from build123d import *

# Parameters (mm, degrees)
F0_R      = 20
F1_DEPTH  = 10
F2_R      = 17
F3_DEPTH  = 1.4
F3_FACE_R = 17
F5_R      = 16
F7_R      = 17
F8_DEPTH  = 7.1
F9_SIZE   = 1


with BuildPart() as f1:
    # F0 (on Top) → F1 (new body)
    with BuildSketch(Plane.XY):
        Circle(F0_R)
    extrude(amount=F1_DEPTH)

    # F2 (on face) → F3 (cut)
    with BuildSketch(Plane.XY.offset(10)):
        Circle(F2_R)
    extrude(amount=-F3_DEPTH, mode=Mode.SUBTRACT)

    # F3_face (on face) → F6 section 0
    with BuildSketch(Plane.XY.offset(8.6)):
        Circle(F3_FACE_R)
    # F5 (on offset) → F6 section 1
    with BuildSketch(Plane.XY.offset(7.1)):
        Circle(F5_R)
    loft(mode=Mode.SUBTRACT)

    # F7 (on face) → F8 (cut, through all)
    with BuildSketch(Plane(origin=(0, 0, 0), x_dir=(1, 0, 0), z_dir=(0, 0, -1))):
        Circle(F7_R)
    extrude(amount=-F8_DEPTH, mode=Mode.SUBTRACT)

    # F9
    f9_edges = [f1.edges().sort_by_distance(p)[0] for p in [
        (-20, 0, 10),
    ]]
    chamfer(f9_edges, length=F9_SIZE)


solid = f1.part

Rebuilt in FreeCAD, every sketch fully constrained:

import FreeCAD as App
import Part
import Sketcher
from FreeCAD import Vector
Q = App.Units.Quantity


def edges_at(feature, points):
    """Names of the edges that pass closest to the given points."""
    edges = feature.Shape.Edges
    near = lambda p: min(range(len(edges)), key=lambda i: edges[i].distToShape(Part.Vertex(*p))[0])
    return sorted({f"Edge{near(p) + 1}" for p in points})

doc = App.newDocument("Part")
body = doc.addObject("PartDesign::Body", "Body")

# Sketch on XY plane
sketch1 = doc.addObject("Sketcher::SketchObject", "Sketch")
body.addObject(sketch1)
sketch1.AttachmentSupport = (doc.XY_Plane, [""])
sketch1.MapMode = "FlatFace"
sketch1.addGeometry(Part.Circle(Vector(0, 0, 0), Vector(0, 0, 1), 20), False)
sketch1.addConstraint(Sketcher.Constraint("Coincident", 0, 3, -1, 1))
sketch1.addConstraint(Sketcher.Constraint("Diameter", 0, Q("40 mm")))
pad1 = doc.addObject("PartDesign::Pad", "Pad")
body.addObject(pad1)
pad1.Profile = sketch1
pad1.Length = 10

# Sketch on XY plane
sketch2 = doc.addObject("Sketcher::SketchObject", "Sketch001")
body.addObject(sketch2)
sketch2.AttachmentSupport = (doc.XY_Plane, [""])
sketch2.MapMode = "FlatFace"
sketch2.AttachmentOffset = App.Placement(Vector(0, 0, 10), App.Rotation())
sketch2.addGeometry(Part.Circle(Vector(0, 0, 0), Vector(0, 0, 1), 17), False)
sketch2.addConstraint(Sketcher.Constraint("Coincident", 0, 3, -1, 1))
sketch2.addConstraint(Sketcher.Constraint("Diameter", 0, Q("34 mm")))
pocket1 = doc.addObject("PartDesign::Pocket", "Pocket")
body.addObject(pocket1)
pocket1.Profile = sketch2
pocket1.Length = 1.4

# Sketch on XY plane
sketch3 = doc.addObject("Sketcher::SketchObject", "Sketch002")
body.addObject(sketch3)
sketch3.AttachmentSupport = (doc.XY_Plane, [""])
sketch3.MapMode = "FlatFace"
sketch3.AttachmentOffset = App.Placement(Vector(0, 0, 8.6), App.Rotation())
sketch3.addGeometry(Part.Circle(Vector(0, 0, 0), Vector(0, 0, 1), 17), False)
sketch3.addConstraint(Sketcher.Constraint("Coincident", 0, 3, -1, 1))
sketch3.addConstraint(Sketcher.Constraint("Diameter", 0, Q("34 mm")))

# Sketch on XY plane
sketch4 = doc.addObject("Sketcher::SketchObject", "Sketch003")
body.addObject(sketch4)
sketch4.AttachmentSupport = (doc.XY_Plane, [""])
sketch4.MapMode = "FlatFace"
sketch4.AttachmentOffset = App.Placement(Vector(0, 0, 7.1), App.Rotation())
sketch4.addGeometry(Part.Circle(Vector(0, 0, 0), Vector(0, 0, 1), 16), False)
sketch4.addConstraint(Sketcher.Constraint("Coincident", 0, 3, -1, 1))
sketch4.addConstraint(Sketcher.Constraint("Diameter", 0, Q("32 mm")))

subtractiveloft = doc.addObject("PartDesign::SubtractiveLoft", "SubtractiveLoft")
body.addObject(subtractiveloft)
subtractiveloft.Profile = sketch3
subtractiveloft.Sections = [sketch4]

# Sketch on XY plane
sketch5 = doc.addObject("Sketcher::SketchObject", "Sketch004")
body.addObject(sketch5)
sketch5.AttachmentSupport = (doc.XY_Plane, [""])
sketch5.MapMode = "FlatFace"
sketch5.addGeometry(Part.Circle(Vector(0, 0, 0), Vector(0, 0, 1), 17), False)
sketch5.addConstraint(Sketcher.Constraint("Coincident", 0, 3, -1, 1))
sketch5.addConstraint(Sketcher.Constraint("Diameter", 0, Q("34 mm")))
pocket2 = doc.addObject("PartDesign::Pocket", "Pocket001")
body.addObject(pocket2)
pocket2.Profile = sketch5
pocket2.Length = 7.1
pocket2.Reversed = True
doc.recompute()

chamfer = doc.addObject("PartDesign::Chamfer", "Chamfer")
body.addObject(chamfer)
chamfer.Base = (pocket2, edges_at(pocket2, [(-20, 0, 10)]))
chamfer.Size = 1

doc.recompute()
